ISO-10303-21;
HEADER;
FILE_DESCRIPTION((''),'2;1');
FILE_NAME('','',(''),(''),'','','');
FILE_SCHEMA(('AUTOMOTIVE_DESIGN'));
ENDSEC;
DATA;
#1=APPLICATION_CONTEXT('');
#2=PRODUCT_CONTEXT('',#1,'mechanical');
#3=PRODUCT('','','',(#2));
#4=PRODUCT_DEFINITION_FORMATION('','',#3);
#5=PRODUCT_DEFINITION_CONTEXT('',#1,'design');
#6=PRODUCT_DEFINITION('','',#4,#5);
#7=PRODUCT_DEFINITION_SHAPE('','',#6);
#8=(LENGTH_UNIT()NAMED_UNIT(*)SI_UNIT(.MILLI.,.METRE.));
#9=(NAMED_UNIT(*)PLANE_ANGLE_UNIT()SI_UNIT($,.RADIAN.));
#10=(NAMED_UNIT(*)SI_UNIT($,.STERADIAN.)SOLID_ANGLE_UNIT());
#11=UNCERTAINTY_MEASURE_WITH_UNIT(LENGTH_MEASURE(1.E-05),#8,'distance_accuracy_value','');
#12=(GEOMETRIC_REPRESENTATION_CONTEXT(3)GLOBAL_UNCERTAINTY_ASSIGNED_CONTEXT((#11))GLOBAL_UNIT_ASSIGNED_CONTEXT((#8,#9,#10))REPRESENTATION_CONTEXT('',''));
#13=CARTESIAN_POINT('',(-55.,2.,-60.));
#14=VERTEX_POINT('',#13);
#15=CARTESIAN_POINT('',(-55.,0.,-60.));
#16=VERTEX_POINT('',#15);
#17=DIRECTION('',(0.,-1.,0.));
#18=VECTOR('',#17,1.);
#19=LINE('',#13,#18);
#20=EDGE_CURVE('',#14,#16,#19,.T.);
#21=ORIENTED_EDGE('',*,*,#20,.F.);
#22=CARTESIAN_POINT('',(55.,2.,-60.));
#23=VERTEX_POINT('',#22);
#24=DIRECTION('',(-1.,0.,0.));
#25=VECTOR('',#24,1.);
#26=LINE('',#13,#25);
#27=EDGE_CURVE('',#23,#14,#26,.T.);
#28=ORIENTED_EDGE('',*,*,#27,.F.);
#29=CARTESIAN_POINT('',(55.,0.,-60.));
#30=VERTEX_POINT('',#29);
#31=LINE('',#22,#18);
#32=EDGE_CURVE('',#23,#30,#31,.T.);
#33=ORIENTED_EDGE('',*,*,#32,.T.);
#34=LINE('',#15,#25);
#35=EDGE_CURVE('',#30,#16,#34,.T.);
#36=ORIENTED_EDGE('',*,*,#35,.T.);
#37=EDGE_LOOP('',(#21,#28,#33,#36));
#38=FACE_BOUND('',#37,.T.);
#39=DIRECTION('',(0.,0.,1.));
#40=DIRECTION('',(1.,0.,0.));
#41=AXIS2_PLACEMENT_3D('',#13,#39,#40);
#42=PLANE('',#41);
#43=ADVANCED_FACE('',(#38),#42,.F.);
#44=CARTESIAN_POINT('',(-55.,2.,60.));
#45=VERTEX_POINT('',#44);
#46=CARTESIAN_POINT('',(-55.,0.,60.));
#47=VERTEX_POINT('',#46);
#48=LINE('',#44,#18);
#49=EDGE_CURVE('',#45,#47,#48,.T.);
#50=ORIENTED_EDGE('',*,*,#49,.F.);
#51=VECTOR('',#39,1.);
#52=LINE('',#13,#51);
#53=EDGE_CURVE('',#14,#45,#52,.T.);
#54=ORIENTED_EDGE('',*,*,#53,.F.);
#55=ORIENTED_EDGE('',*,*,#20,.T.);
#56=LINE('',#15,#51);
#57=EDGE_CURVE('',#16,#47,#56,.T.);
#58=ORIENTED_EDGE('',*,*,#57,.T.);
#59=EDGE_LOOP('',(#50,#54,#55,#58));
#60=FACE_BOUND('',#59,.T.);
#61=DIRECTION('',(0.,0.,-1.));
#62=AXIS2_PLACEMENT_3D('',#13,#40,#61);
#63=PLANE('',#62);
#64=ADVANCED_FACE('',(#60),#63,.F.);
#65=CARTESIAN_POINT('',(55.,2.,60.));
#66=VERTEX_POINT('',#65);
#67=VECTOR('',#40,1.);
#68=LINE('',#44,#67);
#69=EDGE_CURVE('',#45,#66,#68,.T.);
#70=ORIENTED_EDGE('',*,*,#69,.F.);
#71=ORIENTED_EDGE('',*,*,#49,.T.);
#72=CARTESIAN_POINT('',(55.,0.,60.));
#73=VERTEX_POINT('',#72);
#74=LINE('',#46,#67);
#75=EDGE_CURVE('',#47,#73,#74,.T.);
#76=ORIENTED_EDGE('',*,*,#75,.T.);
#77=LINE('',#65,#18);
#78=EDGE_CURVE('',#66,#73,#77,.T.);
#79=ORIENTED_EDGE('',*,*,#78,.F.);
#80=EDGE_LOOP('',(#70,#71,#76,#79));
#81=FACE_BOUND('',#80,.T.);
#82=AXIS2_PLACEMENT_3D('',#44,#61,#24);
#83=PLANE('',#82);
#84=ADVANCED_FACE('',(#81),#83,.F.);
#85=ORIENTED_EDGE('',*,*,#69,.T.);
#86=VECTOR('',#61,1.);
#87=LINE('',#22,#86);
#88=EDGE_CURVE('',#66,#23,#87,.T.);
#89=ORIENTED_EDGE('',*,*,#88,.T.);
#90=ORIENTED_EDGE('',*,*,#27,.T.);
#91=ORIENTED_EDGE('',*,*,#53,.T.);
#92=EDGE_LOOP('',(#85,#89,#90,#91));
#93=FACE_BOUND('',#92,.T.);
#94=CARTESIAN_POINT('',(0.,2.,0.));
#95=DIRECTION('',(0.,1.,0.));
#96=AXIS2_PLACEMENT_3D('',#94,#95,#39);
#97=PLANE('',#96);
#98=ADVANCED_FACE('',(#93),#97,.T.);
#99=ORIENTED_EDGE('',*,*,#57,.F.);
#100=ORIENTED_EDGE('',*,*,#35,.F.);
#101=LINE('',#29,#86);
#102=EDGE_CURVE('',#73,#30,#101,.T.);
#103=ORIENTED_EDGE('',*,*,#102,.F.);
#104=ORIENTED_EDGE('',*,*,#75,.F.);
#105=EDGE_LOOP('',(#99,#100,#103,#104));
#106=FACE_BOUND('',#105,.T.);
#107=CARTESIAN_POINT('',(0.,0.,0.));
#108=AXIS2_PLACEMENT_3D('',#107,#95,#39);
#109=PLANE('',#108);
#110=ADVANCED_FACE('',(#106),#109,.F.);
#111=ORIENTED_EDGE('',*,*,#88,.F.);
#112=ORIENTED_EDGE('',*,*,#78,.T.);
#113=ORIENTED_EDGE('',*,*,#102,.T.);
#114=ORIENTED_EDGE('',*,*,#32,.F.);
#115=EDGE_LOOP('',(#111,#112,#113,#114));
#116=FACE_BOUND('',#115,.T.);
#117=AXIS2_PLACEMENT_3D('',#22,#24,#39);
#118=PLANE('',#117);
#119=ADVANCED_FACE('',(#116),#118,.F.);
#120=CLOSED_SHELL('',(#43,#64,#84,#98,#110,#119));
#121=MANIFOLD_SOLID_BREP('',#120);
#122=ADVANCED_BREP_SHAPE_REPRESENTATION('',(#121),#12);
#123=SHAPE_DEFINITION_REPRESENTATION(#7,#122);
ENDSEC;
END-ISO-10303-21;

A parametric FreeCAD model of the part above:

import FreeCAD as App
import Part
import Sketcher
Q = App.Units.Quantity

doc = App.newDocument("Part")
body = doc.addObject("PartDesign::Body", "Body")

# Sketch on XZ plane
sketch1 = doc.addObject("Sketcher::SketchObject", "Sketch")
body.addObject(sketch1)
sketch1.AttachmentSupport = (doc.XZ_Plane, [""])
sketch1.MapMode = "FlatFace"
sketch1.addGeometry([
    Part.LineSegment(App.Vector(-55, -60, 0), App.Vector(-55, 60, 0)),
    Part.LineSegment(App.Vector(-55, 60, 0), App.Vector(55, 60, 0)),
    Part.LineSegment(App.Vector(55, 60, 0), App.Vector(55, -60, 0)),
    Part.LineSegment(App.Vector(55, -60, 0), App.Vector(-55, -60, 0)),
], False)
sketch1.addConstraint([
    Sketcher.Constraint("Coincident", 0, 2, 1, 1),
    Sketcher.Constraint("Coincident", 1, 2, 2, 1),
    Sketcher.Constraint("Coincident", 2, 2, 3, 1),
    Sketcher.Constraint("Coincident", 3, 2, 0, 1),
    Sketcher.Constraint("Vertical", 0),
    Sketcher.Constraint("Horizontal", 1),
    Sketcher.Constraint("Vertical", 2),
    Sketcher.Constraint("Horizontal", 3),
    Sketcher.Constraint("Symmetric", 0, 2, 2, 2, -1, 1),
    Sketcher.Constraint("DistanceX", 1, 1, 1, 2, Q("110 mm")),
    Sketcher.Constraint("DistanceY", 0, 1, 0, 2, Q("120 mm")),
])
pad1 = doc.addObject("PartDesign::Pad", "Pad")
body.addObject(pad1)
pad1.Profile = sketch1
pad1.Length = 2
pad1.Reversed = True

doc.recompute()
